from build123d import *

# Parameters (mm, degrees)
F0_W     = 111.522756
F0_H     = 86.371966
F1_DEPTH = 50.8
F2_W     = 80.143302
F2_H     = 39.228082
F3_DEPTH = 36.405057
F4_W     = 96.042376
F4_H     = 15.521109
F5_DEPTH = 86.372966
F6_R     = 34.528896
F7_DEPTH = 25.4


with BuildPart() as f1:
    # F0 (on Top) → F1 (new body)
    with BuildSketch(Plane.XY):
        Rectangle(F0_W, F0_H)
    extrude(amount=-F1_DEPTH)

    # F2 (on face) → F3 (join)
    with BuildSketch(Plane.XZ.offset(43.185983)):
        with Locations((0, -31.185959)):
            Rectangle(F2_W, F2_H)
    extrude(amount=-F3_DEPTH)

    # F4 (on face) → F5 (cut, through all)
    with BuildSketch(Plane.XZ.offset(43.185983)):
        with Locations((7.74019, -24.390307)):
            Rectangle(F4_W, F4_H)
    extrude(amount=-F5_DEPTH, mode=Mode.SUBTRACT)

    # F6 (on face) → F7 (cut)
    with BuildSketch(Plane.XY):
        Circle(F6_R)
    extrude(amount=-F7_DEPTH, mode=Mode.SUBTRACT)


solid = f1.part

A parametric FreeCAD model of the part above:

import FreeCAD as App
import Part
import Sketcher
from FreeCAD import Vector
Q = App.Units.Quantity


def add_polygon(sketch, points):
    """Adds a closed chain of lines whose ends are joined by coincident constraints."""
    first, n = sketch.GeometryCount, len(points)
    for a, b in zip(points, points[1:] + points[:1]):
        sketch.addGeometry(Part.LineSegment(App.Vector(*a, 0), App.Vector(*b, 0)), False)
    for i in range(n):
        sketch.addConstraint(Sketcher.Constraint("Coincident", first + i, 2, first + (i + 1) % n, 1))

doc = App.newDocument("Part")
body = doc.addObject("PartDesign::Body", "Body")

# Sketch on XY plane
sketch1 = doc.addObject("Sketcher::SketchObject", "Sketch")
body.addObject(sketch1)
sketch1.AttachmentSupport = (doc.XY_Plane, [""])
sketch1.MapMode = "FlatFace"
add_polygon(sketch1, [(-56, 43), (-56, -43), (56, -43), (56, 43)])  # lines 0-3
sketch1.addConstraint(Sketcher.Constraint("Vertical", 0))
sketch1.addConstraint(Sketcher.Constraint("Horizontal", 1))
sketch1.addConstraint(Sketcher.Constraint("Vertical", 2))
sketch1.addConstraint(Sketcher.Constraint("Horizontal", 3))
sketch1.addConstraint(Sketcher.Constraint("Symmetric", 0, 2, 2, 2, -1, 1))
sketch1.addConstraint(Sketcher.Constraint("DistanceX", 1, 1, 1, 2, Q("111.522756 mm")))
sketch1.addConstraint(Sketcher.Constraint("DistanceY", 0, 2, 0, 1, Q("86.371966 mm")))
pad1 = doc.addObject("PartDesign::Pad", "Pad")
body.addObject(pad1)
pad1.Profile = sketch1
pad1.Length = Q("2 in")
pad1.Reversed = True

# Sketch on XZ plane
sketch2 = doc.addObject("Sketcher::SketchObject", "Sketch001")
body.addObject(sketch2)
sketch2.AttachmentSupport = (doc.XZ_Plane, [""])
sketch2.MapMode = "FlatFace"
sketch2.AttachmentOffset = App.Placement(Vector(0, 0, 43.185983), App.Rotation())
add_polygon(sketch2, [(-40, -12), (-40, -51), (40, -51), (40, -12)])  # lines 0-3
sketch2.addConstraint(Sketcher.Constraint("Vertical", 0))
sketch2.addConstraint(Sketcher.Constraint("Horizontal", 1))
sketch2.addConstraint(Sketcher.Constraint("Vertical", 2))
sketch2.addConstraint(Sketcher.Constraint("Horizontal", 3))
sketch2.addConstraint(Sketcher.Constraint("DistanceY", 0, 2, -1, 1, Q("2 in")))
sketch2.addConstraint(Sketcher.Constraint("DistanceX", 1, 1, 1, 2, Q("80.143302 mm")))
sketch2.addConstraint(Sketcher.Constraint("DistanceY", 0, 2, 0, 1, Q("39.228082 mm")))
sketch2.addConstraint(Sketcher.Constraint("DistanceX", 0, 2, -1, 1, Q("40.071651 mm")))
pad2 = doc.addObject("PartDesign::Pad", "Pad001")
body.addObject(pad2)
pad2.Profile = sketch2
pad2.Length = 36.405057
pad2.Reversed = True

# Sketch on XZ plane
sketch3 = doc.addObject("Sketcher::SketchObject", "Sketch002")
body.addObject(sketch3)
sketch3.AttachmentSupport = (doc.XZ_Plane, [""])
sketch3.MapMode = "FlatFace"
sketch3.AttachmentOffset = App.Placement(Vector(0, 0, 43.185983), App.Rotation())
add_polygon(sketch3, [(-40, -17), (-40, -32), (56, -32), (56, -17)])  # lines 0-3
sketch3.addConstraint(Sketcher.Constraint("Vertical", 0))
sketch3.addConstraint(Sketcher.Constraint("Horizontal", 1))
sketch3.addConstraint(Sketcher.Constraint("Vertical", 2))
sketch3.addConstraint(Sketcher.Constraint("Horizontal", 3))
sketch3.addConstraint(Sketcher.Constraint("DistanceY", 0, 2, 0, 1, Q("15.521109 mm")))
sketch3.addConstraint(Sketcher.Constraint("DistanceX", 1, 1, 1, 2, Q("96.042376 mm")))
sketch3.addConstraint(Sketcher.Constraint("DistanceY", 0, 2, -1, 1, Q("32.150861 mm")))
sketch3.addConstraint(Sketcher.Constraint("DistanceX", 0, 2, -1, 1, Q("40.280998 mm")))
pocket1 = doc.addObject("PartDesign::Pocket", "Pocket")
body.addObject(pocket1)
pocket1.Profile = sketch3
pocket1.Type = "ThroughAll"

# Sketch on XY plane
sketch4 = doc.addObject("Sketcher::SketchObject", "Sketch003")
body.addObject(sketch4)
sketch4.AttachmentSupport = (doc.XY_Plane, [""])
sketch4.MapMode = "FlatFace"
sketch4.addGeometry(Part.Circle(Vector(0, 0, 0), Vector(0, 0, 1), 35), False)
sketch4.addConstraint(Sketcher.Constraint("Coincident", 0, 3, -1, 1))
sketch4.addConstraint(Sketcher.Constraint("Diameter", 0, Q("69.057792 mm")))
pocket2 = doc.addObject("PartDesign::Pocket", "Pocket001")
body.addObject(pocket2)
pocket2.Profile = sketch4
pocket2.Length = Q("1 in")

doc.recompute()
